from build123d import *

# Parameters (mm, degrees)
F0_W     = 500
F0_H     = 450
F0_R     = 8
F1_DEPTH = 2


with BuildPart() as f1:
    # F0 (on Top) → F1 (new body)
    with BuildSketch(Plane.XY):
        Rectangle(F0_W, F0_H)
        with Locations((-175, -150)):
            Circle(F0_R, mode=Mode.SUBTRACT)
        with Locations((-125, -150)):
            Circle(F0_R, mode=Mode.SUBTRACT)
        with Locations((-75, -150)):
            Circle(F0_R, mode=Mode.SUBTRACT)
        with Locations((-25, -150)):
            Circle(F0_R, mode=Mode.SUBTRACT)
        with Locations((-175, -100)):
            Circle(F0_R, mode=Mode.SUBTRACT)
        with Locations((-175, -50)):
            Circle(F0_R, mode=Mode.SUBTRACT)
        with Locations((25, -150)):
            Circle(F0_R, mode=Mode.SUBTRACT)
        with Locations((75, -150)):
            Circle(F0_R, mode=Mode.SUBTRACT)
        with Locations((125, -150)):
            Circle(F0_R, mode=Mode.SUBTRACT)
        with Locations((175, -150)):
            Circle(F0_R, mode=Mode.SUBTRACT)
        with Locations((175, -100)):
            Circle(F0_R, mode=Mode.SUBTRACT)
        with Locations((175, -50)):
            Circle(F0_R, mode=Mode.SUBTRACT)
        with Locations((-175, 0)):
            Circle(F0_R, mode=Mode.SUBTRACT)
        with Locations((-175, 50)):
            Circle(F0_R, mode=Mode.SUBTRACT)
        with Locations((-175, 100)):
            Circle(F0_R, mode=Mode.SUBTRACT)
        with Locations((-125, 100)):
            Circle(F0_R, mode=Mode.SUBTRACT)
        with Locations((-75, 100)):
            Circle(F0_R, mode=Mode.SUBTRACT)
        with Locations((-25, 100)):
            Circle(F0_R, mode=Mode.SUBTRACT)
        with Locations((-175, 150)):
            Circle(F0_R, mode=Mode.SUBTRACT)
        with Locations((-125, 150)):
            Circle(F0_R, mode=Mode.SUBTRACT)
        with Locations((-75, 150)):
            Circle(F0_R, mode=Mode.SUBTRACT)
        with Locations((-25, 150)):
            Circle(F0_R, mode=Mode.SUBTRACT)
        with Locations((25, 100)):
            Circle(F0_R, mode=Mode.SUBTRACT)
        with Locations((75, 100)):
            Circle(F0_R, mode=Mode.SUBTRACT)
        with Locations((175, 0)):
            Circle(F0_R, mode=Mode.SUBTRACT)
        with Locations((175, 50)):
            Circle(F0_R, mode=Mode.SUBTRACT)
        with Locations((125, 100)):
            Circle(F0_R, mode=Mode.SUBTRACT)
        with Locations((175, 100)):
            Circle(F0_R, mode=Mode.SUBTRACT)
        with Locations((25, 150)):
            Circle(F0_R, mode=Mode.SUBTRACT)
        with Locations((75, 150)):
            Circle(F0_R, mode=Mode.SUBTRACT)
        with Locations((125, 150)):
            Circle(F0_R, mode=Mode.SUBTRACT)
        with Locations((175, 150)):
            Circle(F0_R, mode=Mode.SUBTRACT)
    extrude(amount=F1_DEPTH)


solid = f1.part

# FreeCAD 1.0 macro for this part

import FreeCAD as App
import Part
import Sketcher

doc = App.newDocument("Part")
body = doc.addObject("PartDesign::Body", "Body")

# Sketch on XY plane
sketch1 = body.newObject("Sketcher::SketchObject", "Sketch")
sketch1.AttachmentSupport = (doc.getObject("XY_Plane"), [""])
sketch1.MapMode = "FlatFace"
sketch1.addGeometry([
    Part.LineSegment(App.Vector(-250, 225, 0), App.Vector(-250, -225, 0)),  # 0
    Part.LineSegment(App.Vector(-250, -225, 0), App.Vector(250, -225, 0)),  # 1
    Part.LineSegment(App.Vector(250, -225, 0), App.Vector(250, 225, 0)),  # 2
    Part.LineSegment(App.Vector(250, 225, 0), App.Vector(-250, 225, 0)),  # 3
    Part.Circle(App.Vector(-175, -150, 0), App.Vector(0, 0, 1), 8),  # 4
    Part.Circle(App.Vector(-125, -150, 0), App.Vector(0, 0, 1), 8),  # 5
    Part.Circle(App.Vector(-175, -100, 0), App.Vector(0, 0, 1), 8),  # 6
    Part.Circle(App.Vector(-75, -150, 0), App.Vector(0, 0, 1), 8),  # 7
    Part.Circle(App.Vector(-25, -150, 0), App.Vector(0, 0, 1), 8),  # 8
    Part.Circle(App.Vector(-175, -50, 0), App.Vector(0, 0, 1), 8),  # 9
    Part.Circle(App.Vector(25, -150, 0), App.Vector(0, 0, 1), 8),  # 10
    Part.Circle(App.Vector(75, -150, 0), App.Vector(0, 0, 1), 8),  # 11
    Part.Circle(App.Vector(125, -150, 0), App.Vector(0, 0, 1), 8),  # 12
    Part.Circle(App.Vector(175, -150, 0), App.Vector(0, 0, 1), 8),  # 13
    Part.Circle(App.Vector(175, -100, 0), App.Vector(0, 0, 1), 8),  # 14
    Part.Circle(App.Vector(175, -50, 0), App.Vector(0, 0, 1), 8),  # 15
    Part.Circle(App.Vector(-175, 0, 0), App.Vector(0, 0, 1), 8),  # 16
    Part.Circle(App.Vector(-175, 50, 0), App.Vector(0, 0, 1), 8),  # 17
    Part.Circle(App.Vector(-175, 100, 0), App.Vector(0, 0, 1), 8),  # 18
    Part.Circle(App.Vector(-125, 100, 0), App.Vector(0, 0, 1), 8),  # 19
    Part.Circle(App.Vector(-175, 150, 0), App.Vector(0, 0, 1), 8),  # 20
    Part.Circle(App.Vector(-125, 150, 0), App.Vector(0, 0, 1), 8),  # 21
    Part.Circle(App.Vector(-75, 100, 0), App.Vector(0, 0, 1), 8),  # 22
    Part.Circle(App.Vector(-25, 100, 0), App.Vector(0, 0, 1), 8),  # 23
    Part.Circle(App.Vector(-75, 150, 0), App.Vector(0, 0, 1), 8),  # 24
    Part.Circle(App.Vector(-25, 150, 0), App.Vector(0, 0, 1), 8),  # 25
    Part.Circle(App.Vector(175, 0, 0), App.Vector(0, 0, 1), 8),  # 26
    Part.Circle(App.Vector(175, 50, 0), App.Vector(0, 0, 1), 8),  # 27
    Part.Circle(App.Vector(25, 100, 0), App.Vector(0, 0, 1), 8),  # 28
    Part.Circle(App.Vector(75, 100, 0), App.Vector(0, 0, 1), 8),  # 29
    Part.Circle(App.Vector(25, 150, 0), App.Vector(0, 0, 1), 8),  # 30
    Part.Circle(App.Vector(75, 150, 0), App.Vector(0, 0, 1), 8),  # 31
    Part.Circle(App.Vector(125, 100, 0), App.Vector(0, 0, 1), 8),  # 32
    Part.Circle(App.Vector(175, 100, 0), App.Vector(0, 0, 1), 8),  # 33
    Part.Circle(App.Vector(125, 150, 0), App.Vector(0, 0, 1), 8),  # 34
    Part.Circle(App.Vector(175, 150, 0), App.Vector(0, 0, 1), 8),  # 35
], False)
sketch1.addConstraint([
    Sketcher.Constraint("Coincident", 0, 2, 1, 1),
    Sketcher.Constraint("Coincident", 1, 2, 2, 1),
    Sketcher.Constraint("Coincident", 2, 2, 3, 1),
    Sketcher.Constraint("Coincident", 3, 2, 0, 1),
    Sketcher.Constraint("Vertical", 0),
    Sketcher.Constraint("Horizontal", 1),
    Sketcher.Constraint("Vertical", 2),
    Sketcher.Constraint("Horizontal", 3),
    Sketcher.Constraint("Equal", 4, 5),
    Sketcher.Constraint("Equal", 5, 6),
    Sketcher.Constraint("Equal", 6, 7),
    Sketcher.Constraint("Equal", 7, 8),
    Sketcher.Constraint("Equal", 8, 9),
    Sketcher.Constraint("Equal", 9, 10),
    Sketcher.Constraint("Equal", 10, 11),
    Sketcher.Constraint("Equal", 11, 12),
    Sketcher.Constraint("Equal", 12, 13),
    Sketcher.Constraint("Equal", 13, 14),
    Sketcher.Constraint("Equal", 14, 15),
    Sketcher.Constraint("Equal", 15, 16),
    Sketcher.Constraint("Equal", 16, 17),
    Sketcher.Constraint("Equal", 17, 18),
    Sketcher.Constraint("Equal", 18, 19),
    Sketcher.Constraint("Equal", 19, 20),
    Sketcher.Constraint("Equal", 20, 21),
    Sketcher.Constraint("Equal", 21, 22),
    Sketcher.Constraint("Equal", 22, 23),
    Sketcher.Constraint("Equal", 23, 24),
    Sketcher.Constraint("Equal", 24, 25),
    Sketcher.Constraint("Equal", 25, 26),
    Sketcher.Constraint("Equal", 26, 27),
    Sketcher.Constraint("Equal", 27, 28),
    Sketcher.Constraint("Equal", 28, 29),
    Sketcher.Constraint("Equal", 29, 30),
    Sketcher.Constraint("Equal", 30, 31),
    Sketcher.Constraint("Equal", 31, 32),
    Sketcher.Constraint("Equal", 32, 33),
    Sketcher.Constraint("Equal", 33, 34),
    Sketcher.Constraint("Equal", 34, 35),
    Sketcher.Constraint("Symmetric", 15, 3, 17, 3, -1, 1),
    Sketcher.Constraint("Symmetric", 14, 3, 18, 3, -1, 1),
    Sketcher.Constraint("Symmetric", 13, 3, 20, 3, -1, 1),
    Sketcher.Constraint("Symmetric", 12, 3, 21, 3, -1, 1),
    Sketcher.Constraint("Symmetric", 11, 3, 24, 3, -1, 1),
    Sketcher.Constraint("Symmetric", 10, 3, 25, 3, -1, 1),
    Sketcher.Constraint("Symmetric", 16, 3, 26, 3, -1, 1),
    Sketcher.Constraint("Symmetric", 9, 3, 27, 3, -1, 1),
    Sketcher.Constraint("Symmetric", 8, 3, 30, 3, -1, 1),
    Sketcher.Constraint("Symmetric", 7, 3, 31, 3, -1, 1),
    Sketcher.Constraint("Symmetric", 6, 3, 33, 3, -1, 1),
    Sketcher.Constraint("Symmetric", 5, 3, 34, 3, -1, 1),
    Sketcher.Constraint("Symmetric", 4, 3, 35, 3, -1, 1),
    Sketcher.Constraint("Symmetric", 0, 2, 2, 2, -1, 1),
    Sketcher.Constraint("Symmetric", 8, 3, 10, 3, -2),
    Sketcher.Constraint("Symmetric", 7, 3, 11, 3, -2),
    Sketcher.Constraint("Symmetric", 5, 3, 12, 3, -2),
    Sketcher.Constraint("Symmetric", 4, 3, 13, 3, -2),
    Sketcher.Constraint("Symmetric", 6, 3, 14, 3, -2),
    Sketcher.Constraint("Symmetric", 9, 3, 15, 3, -2),
    Sketcher.Constraint("Symmetric", 23, 3, 28, 3, -2),
    Sketcher.Constraint("Symmetric", 22, 3, 29, 3, -2),
    Sketcher.Constraint("Symmetric", 19, 3, 32, 3, -2),
    Sketcher.Constraint("PointOnObject", 16, 3, -1),
    Sketcher.Constraint("Horizontal", 4, 3, 5, 3),
    Sketcher.Constraint("Horizontal", 5, 3, 7, 3),
    Sketcher.Constraint("Horizontal", 7, 3, 8, 3),
    Sketcher.Constraint("Horizontal", 18, 3, 19, 3),
    Sketcher.Constraint("Horizontal", 19, 3, 22, 3),
    Sketcher.Constraint("Horizontal", 22, 3, 23, 3),
    Sketcher.Constraint("Vertical", 4, 3, 6, 3),
    Sketcher.Constraint("Vertical", 6, 3, 9, 3),
    Sketcher.Constraint("Vertical", 9, 3, 16, 3),
    Sketcher.Constraint("Vertical", 5, 3, 19, 3),
    Sketcher.Constraint("Vertical", 7, 3, 22, 3),
    Sketcher.Constraint("Vertical", 8, 3, 23, 3),
    Sketcher.Constraint("Diameter", 4, 16.0),
    Sketcher.Constraint("DistanceX", 1, 1, 1, 2, 500.0),
    Sketcher.Constraint("DistanceY", 0, 2, 0, 1, 450.0),
    Sketcher.Constraint("DistanceX", 4, 3, -1, 1, 175.0),
    Sketcher.Constraint("DistanceY", 4, 3, -1, 1, 150.0),
    Sketcher.Constraint("DistanceX", 5, 3, -1, 1, 125.0),
    Sketcher.Constraint("DistanceY", 6, 3, -1, 1, 100.0),
    Sketcher.Constraint("DistanceX", 7, 3, -1, 1, 75.0),
    Sketcher.Constraint("DistanceX", 8, 3, -1, 1, 25.0),
    Sketcher.Constraint("DistanceY", 9, 3, -1, 1, 50.0),
])
pad1 = body.newObject("PartDesign::Pad", "Pad")
pad1.Profile = sketch1
pad1.Length = 2

doc.recompute()
